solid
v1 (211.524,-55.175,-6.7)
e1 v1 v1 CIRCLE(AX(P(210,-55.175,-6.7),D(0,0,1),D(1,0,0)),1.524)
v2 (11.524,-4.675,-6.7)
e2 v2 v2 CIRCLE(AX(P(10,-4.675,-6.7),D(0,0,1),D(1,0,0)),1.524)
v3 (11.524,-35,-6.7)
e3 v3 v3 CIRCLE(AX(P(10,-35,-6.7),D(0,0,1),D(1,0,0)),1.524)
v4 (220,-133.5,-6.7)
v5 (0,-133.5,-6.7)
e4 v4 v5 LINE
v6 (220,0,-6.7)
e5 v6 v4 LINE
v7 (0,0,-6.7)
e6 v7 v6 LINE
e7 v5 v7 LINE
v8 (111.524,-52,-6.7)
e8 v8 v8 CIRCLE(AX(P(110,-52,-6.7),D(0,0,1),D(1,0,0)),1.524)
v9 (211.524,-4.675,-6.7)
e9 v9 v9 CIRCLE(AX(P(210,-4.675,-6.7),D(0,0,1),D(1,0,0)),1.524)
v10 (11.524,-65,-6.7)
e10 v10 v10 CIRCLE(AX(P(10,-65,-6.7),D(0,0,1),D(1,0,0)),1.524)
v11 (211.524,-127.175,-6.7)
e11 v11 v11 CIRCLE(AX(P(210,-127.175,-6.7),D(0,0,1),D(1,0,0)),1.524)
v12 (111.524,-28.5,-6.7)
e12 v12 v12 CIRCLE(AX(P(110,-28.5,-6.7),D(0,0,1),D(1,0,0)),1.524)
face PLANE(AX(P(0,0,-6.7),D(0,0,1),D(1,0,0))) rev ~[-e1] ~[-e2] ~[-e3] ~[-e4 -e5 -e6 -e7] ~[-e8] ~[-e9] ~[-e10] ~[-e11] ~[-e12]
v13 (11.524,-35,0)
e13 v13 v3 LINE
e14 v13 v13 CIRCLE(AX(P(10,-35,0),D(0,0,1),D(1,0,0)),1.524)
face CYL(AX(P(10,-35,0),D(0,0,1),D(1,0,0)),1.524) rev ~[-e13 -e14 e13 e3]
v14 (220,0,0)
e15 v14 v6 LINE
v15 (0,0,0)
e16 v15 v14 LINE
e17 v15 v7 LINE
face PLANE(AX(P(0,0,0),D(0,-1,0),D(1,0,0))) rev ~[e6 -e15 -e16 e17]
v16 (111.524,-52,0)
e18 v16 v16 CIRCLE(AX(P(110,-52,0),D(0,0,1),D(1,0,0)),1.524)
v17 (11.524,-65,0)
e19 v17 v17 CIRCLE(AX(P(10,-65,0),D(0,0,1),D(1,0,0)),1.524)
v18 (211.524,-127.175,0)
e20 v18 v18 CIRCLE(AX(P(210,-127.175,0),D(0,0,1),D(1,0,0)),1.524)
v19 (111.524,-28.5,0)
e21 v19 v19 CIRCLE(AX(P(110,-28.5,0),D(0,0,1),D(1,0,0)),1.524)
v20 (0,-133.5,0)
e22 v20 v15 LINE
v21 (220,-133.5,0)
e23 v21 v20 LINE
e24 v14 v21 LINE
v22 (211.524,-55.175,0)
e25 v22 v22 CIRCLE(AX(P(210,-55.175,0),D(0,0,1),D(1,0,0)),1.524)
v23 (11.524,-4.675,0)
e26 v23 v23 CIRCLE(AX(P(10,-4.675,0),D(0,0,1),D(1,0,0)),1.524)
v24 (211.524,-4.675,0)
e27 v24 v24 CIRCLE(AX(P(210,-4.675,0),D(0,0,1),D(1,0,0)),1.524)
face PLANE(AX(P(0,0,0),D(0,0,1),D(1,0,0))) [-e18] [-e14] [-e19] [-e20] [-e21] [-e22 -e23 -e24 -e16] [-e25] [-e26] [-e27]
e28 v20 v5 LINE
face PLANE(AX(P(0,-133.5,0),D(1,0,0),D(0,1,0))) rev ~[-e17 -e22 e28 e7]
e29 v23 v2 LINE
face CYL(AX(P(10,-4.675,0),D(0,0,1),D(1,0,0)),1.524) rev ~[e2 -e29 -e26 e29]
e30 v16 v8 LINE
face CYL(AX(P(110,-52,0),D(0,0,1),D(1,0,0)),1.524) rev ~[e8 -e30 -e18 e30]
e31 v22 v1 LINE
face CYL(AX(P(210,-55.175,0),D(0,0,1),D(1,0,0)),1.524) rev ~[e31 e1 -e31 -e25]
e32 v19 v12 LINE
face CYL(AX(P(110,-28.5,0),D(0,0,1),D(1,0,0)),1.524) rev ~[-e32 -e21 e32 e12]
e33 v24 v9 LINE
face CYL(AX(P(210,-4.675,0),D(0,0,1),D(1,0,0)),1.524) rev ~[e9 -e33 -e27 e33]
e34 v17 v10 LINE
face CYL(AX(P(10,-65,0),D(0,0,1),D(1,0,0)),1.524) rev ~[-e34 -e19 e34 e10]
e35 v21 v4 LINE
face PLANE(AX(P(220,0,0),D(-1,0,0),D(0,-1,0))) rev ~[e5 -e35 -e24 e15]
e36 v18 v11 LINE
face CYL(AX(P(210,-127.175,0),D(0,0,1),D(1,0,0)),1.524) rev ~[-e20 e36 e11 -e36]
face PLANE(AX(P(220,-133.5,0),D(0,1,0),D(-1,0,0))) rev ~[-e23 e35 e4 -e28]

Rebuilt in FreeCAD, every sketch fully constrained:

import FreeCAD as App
import Part
import Sketcher
from FreeCAD import Vector


def add_polygon(sketch, points):
    """Adds a closed chain of lines whose ends are joined by coincident constraints."""
    first, n = sketch.GeometryCount, len(points)
    for a, b in zip(points, points[1:] + points[:1]):
        sketch.addGeometry(Part.LineSegment(App.Vector(*a, 0), App.Vector(*b, 0)), False)
    for i in range(n):
        sketch.addConstraint(Sketcher.Constraint("Coincident", first + i, 2, first + (i + 1) % n, 1))

doc = App.newDocument("Part")
params = doc.addObject("Spreadsheet::Sheet", "Params")
for row, (alias, value) in enumerate([
    ("sketch1_width", "220 mm"),
    ("sketch1_height", "133.5 mm"),
    ("pad1_length", "6.7 mm"),
], start=1):
    params.set(f"A{row}", alias)
    params.set(f"B{row}", "=" + value)
    params.setAlias(f"B{row}", alias)

body = doc.addObject("PartDesign::Body", "Body")

# Sketch on XY plane
sketch1 = body.newObject("Sketcher::SketchObject", "Sketch")
sketch1.AttachmentSupport = (doc.getObject("XY_Plane"), [""])
sketch1.MapMode = "FlatFace"
add_polygon(sketch1, [(220, 0), (0, 0), (0, -133.5), (220, -133.5)])  # lines 0-3
sketch1.addConstraint([
    Sketcher.Constraint("Horizontal", 0),
    Sketcher.Constraint("Vertical", 1),
    Sketcher.Constraint("Horizontal", 2),
    Sketcher.Constraint("Vertical", 3),
    Sketcher.Constraint("Coincident", 0, 2, -1, 1),
    Sketcher.Constraint("DistanceX", 0, 2, 0, 1, 220.0),
    Sketcher.Constraint("DistanceY", 1, 2, 1, 1, 133.5),
])
sketch1.setExpression("Constraints[9]", "Params.sketch1_width")
sketch1.setExpression("Constraints[10]", "Params.sketch1_height")
pad1 = body.newObject("PartDesign::Pad", "Pad")
pad1.Profile = sketch1
pad1.setExpression("Length", "Params.pad1_length")
pad1.Reversed = True

# Sketch on XY plane
sketch2 = body.newObject("Sketcher::SketchObject", "Sketch001")
sketch2.AttachmentSupport = (doc.getObject("XY_Plane"), [""])
sketch2.MapMode = "FlatFace"
sketch2.addGeometry([
    Part.Circle(Vector(10, -4.675, 0), Vector(0, 0, 1), 1.524),  # 0
    Part.Circle(Vector(10, -35, 0), Vector(0, 0, 1), 1.524),  # 1
    Part.Circle(Vector(10, -65, 0), Vector(0, 0, 1), 1.524),  # 2
    Part.Circle(Vector(110, -28.5, 0), Vector(0, 0, 1), 1.524),  # 3
    Part.Circle(Vector(110, -52, 0), Vector(0, 0, 1), 1.524),  # 4
    Part.Circle(Vector(210, -4.675, 0), Vector(0, 0, 1), 1.524),  # 5
    Part.Circle(Vector(210, -55.175, 0), Vector(0, 0, 1), 1.524),  # 6
    Part.Circle(Vector(210, -127.175, 0), Vector(0, 0, 1), 1.524),  # 7
], False)
sketch2.addConstraint([
    Sketcher.Constraint("Equal", 0, 1),
    Sketcher.Constraint("Equal", 1, 2),
    Sketcher.Constraint("Equal", 2, 3),
    Sketcher.Constraint("Equal", 3, 4),
    Sketcher.Constraint("Equal", 4, 5),
    Sketcher.Constraint("Equal", 5, 6),
    Sketcher.Constraint("Equal", 6, 7),
    Sketcher.Constraint("Horizontal", 0, 3, 5, 3),
    Sketcher.Constraint("Vertical", 0, 3, 1, 3),
    Sketcher.Constraint("Vertical", 1, 3, 2, 3),
    Sketcher.Constraint("Vertical", 3, 3, 4, 3),
    Sketcher.Constraint("Vertical", 5, 3, 6, 3),
    Sketcher.Constraint("Vertical", 6, 3, 7, 3),
    Sketcher.Constraint("Diameter", 0, 3.048),
    Sketcher.Constraint("DistanceX", -1, 1, 0, 3, 10.0),
    Sketcher.Constraint("DistanceX", -1, 1, 3, 3, 110.0),
    Sketcher.Constraint("DistanceY", 2, 3, 1, 3, 30.0),
    Sketcher.Constraint("DistanceY", 7, 3, 6, 3, 72.0),
    Sketcher.Constraint("DistanceY", 3, 3, -1, 1, 28.5),
    Sketcher.Constraint("DistanceY", 4, 3, 3, 3, 23.5),
    Sketcher.Constraint("DistanceY", 6, 3, 5, 3, 50.5),
    Sketcher.Constraint("DistanceY", 0, 3, -1, 1, 4.675),
    Sketcher.Constraint("DistanceY", 1, 3, -1, 1, 35.0),
    Sketcher.Constraint("DistanceX", -1, 1, 5, 3, 210.0),
])
pocket1 = body.newObject("PartDesign::Pocket", "Pocket")
pocket1.Profile = sketch2
pocket1.Type = "ThroughAll"

doc.recompute()
